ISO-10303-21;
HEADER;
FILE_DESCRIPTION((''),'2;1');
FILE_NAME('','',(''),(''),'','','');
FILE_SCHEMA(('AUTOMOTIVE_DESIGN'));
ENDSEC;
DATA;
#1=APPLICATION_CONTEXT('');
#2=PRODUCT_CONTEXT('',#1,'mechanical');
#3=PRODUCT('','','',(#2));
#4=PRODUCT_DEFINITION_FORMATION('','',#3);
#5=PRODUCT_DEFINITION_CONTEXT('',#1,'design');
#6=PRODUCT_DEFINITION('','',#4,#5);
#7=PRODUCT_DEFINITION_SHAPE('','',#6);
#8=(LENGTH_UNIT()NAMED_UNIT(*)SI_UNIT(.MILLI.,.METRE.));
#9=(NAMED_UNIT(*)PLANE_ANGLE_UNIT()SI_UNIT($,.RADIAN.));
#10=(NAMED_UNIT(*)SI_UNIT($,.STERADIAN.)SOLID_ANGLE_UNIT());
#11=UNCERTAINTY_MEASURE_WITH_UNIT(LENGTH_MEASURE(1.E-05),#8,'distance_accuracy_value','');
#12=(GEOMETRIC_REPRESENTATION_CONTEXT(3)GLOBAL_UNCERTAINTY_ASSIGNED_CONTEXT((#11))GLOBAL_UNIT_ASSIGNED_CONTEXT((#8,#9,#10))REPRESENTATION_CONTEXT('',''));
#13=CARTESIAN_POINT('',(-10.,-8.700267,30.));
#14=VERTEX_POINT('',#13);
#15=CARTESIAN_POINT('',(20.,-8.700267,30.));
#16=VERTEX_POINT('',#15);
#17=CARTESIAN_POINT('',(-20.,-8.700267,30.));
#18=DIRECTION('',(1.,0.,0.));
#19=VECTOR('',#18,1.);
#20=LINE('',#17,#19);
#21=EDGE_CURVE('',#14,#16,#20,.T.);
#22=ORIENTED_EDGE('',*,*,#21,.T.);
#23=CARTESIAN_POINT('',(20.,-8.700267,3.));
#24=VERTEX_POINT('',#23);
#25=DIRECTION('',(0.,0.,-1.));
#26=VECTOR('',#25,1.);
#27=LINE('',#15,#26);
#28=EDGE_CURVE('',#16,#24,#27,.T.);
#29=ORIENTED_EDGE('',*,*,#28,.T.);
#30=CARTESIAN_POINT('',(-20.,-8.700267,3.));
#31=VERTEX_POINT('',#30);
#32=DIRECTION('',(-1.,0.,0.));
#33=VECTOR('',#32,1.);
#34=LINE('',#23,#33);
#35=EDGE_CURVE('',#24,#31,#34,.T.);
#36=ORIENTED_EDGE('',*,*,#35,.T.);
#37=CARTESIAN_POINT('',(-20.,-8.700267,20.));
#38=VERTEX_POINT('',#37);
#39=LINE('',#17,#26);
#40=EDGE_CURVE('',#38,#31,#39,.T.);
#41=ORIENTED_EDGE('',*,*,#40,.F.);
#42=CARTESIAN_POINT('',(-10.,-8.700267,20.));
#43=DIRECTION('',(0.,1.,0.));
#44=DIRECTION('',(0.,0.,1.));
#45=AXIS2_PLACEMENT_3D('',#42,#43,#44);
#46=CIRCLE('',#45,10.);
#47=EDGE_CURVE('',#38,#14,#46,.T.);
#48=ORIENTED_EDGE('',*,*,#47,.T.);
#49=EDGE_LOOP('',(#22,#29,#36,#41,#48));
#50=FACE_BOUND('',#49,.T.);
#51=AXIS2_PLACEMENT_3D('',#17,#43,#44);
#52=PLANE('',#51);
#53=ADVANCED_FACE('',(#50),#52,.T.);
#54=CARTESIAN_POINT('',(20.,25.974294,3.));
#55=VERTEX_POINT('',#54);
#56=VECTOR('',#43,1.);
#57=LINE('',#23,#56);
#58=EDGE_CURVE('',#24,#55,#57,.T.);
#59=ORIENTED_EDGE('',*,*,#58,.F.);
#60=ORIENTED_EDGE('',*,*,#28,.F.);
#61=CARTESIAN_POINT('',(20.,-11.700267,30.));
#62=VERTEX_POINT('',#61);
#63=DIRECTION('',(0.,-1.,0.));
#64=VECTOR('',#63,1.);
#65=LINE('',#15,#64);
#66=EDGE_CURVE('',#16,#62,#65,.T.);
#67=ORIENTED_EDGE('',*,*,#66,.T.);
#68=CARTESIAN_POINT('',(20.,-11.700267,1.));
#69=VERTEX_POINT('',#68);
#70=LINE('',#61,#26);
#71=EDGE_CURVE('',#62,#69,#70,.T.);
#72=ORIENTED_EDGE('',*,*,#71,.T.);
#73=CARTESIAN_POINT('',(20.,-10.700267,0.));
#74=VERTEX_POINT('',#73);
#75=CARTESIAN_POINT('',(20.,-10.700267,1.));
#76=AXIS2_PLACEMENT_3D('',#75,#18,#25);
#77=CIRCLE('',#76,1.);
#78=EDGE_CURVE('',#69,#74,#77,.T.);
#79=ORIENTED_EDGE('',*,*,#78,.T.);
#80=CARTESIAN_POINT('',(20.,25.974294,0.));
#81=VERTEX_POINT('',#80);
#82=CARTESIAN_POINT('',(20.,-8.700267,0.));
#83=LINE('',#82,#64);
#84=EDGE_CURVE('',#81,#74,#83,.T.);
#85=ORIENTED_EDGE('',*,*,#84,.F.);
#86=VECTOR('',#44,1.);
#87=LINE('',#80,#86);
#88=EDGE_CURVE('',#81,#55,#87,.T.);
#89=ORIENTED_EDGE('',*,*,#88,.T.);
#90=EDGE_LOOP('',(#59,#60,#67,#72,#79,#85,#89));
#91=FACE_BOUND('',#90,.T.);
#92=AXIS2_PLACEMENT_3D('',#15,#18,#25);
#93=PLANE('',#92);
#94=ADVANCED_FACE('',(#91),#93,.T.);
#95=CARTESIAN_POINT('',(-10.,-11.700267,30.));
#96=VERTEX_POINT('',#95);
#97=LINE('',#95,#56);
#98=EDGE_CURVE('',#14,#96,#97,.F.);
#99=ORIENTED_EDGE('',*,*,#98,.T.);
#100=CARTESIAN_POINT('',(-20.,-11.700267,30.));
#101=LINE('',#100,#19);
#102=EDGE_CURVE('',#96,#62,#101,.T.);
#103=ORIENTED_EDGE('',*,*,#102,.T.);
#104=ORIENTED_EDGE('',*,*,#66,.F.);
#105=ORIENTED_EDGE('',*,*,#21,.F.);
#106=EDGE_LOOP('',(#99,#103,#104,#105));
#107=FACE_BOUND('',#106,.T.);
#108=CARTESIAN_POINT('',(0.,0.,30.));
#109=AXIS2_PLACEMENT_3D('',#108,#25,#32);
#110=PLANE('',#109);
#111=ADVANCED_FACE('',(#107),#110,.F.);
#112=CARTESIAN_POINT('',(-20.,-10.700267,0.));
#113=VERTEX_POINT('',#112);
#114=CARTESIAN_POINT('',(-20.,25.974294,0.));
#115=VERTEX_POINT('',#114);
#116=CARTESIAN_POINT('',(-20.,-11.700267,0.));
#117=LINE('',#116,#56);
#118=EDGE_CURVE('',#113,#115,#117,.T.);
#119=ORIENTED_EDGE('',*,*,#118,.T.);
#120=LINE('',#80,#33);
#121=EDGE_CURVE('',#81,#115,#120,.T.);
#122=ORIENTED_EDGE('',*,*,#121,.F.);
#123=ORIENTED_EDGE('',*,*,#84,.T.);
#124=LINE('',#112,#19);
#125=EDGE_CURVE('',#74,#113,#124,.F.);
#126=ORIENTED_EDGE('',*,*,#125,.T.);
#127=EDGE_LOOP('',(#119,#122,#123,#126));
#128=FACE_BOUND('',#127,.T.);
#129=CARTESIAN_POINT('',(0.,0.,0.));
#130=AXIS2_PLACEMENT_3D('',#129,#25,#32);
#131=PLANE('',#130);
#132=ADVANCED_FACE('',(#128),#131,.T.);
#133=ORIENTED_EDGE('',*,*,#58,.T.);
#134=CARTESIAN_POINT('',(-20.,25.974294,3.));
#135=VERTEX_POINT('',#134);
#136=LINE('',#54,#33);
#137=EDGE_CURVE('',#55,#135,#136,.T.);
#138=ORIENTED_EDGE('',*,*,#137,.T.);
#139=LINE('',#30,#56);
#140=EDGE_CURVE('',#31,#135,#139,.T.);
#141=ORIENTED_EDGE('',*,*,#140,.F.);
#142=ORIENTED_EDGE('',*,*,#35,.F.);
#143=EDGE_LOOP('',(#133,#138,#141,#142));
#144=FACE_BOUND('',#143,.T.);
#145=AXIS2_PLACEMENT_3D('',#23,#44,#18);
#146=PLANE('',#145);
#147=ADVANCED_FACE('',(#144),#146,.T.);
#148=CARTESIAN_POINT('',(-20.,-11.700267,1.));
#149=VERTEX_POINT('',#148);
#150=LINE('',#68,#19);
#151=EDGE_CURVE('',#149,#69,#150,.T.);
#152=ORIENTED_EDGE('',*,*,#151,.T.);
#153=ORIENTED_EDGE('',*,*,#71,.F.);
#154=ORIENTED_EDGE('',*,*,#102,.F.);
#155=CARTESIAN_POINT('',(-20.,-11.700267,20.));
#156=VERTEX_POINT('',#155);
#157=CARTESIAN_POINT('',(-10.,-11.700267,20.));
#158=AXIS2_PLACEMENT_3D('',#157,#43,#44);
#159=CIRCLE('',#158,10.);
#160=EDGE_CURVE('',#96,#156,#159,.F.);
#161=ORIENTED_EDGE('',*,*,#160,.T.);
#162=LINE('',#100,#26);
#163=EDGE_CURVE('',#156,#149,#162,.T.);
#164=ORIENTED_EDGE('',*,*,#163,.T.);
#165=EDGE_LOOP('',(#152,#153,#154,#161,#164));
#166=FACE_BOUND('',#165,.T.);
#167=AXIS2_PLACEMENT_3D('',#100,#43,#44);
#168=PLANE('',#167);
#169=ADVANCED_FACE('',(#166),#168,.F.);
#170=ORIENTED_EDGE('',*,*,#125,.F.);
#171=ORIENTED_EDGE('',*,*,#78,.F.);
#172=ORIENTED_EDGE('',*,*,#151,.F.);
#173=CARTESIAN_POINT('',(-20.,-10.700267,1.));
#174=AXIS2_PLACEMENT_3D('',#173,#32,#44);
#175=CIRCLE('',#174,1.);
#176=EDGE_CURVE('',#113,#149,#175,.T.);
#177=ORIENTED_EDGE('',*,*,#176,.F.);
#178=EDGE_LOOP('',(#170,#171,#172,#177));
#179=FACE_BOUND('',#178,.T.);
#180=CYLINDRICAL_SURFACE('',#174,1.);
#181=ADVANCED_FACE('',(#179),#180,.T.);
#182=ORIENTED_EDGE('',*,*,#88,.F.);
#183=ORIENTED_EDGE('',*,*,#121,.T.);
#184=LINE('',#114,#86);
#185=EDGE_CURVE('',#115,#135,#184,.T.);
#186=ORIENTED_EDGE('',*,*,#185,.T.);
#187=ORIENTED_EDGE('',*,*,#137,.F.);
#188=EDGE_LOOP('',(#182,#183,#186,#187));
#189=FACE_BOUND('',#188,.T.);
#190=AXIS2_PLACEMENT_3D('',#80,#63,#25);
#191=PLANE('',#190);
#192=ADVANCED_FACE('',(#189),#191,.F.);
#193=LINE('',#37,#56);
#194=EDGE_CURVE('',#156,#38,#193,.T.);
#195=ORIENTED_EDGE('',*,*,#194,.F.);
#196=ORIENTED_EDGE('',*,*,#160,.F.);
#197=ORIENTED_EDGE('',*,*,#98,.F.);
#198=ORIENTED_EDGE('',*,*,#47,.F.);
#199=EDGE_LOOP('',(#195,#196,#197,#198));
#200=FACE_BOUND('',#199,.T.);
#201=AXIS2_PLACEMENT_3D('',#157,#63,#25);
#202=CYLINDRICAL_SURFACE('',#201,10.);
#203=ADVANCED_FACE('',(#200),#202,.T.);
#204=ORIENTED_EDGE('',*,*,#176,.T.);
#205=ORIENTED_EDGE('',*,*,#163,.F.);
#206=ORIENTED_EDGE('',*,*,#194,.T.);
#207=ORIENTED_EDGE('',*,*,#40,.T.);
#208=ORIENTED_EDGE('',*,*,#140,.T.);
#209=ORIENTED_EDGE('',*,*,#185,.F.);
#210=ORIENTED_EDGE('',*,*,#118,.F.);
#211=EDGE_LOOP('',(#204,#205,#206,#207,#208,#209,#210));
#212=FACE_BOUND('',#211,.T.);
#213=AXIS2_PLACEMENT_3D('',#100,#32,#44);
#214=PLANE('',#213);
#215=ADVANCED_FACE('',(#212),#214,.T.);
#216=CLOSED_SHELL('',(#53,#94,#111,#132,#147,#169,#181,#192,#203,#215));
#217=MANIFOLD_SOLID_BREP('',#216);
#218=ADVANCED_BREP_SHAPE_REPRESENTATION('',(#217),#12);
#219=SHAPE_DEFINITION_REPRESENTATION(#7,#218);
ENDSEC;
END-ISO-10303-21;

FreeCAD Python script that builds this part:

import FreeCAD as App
import Part
import Sketcher

V = App.Vector
Q = App.Units.Quantity


def edges_at(feature, points):
    """Names of the edges that pass closest to the given points."""
    edges = feature.Shape.Edges
    near = lambda p: min(range(len(edges)), key=lambda i: edges[i].distToShape(Part.Vertex(*p))[0])
    return sorted({f"Edge{near(p) + 1}" for p in points})


def add_polygon(sketch, points):
    """Adds a closed chain of lines whose ends are joined by coincident constraints."""
    first, n = sketch.GeometryCount, len(points)
    for a, b in zip(points, points[1:] + points[:1]):
        sketch.addGeometry(Part.LineSegment(App.Vector(*a, 0), App.Vector(*b, 0)), False)
    for i in range(n):
        sketch.addConstraint(Sketcher.Constraint("Coincident", first + i, 2, first + (i + 1) % n, 1))

doc = App.newDocument("Part")
body = doc.addObject("PartDesign::Body", "Body")

# Sketch on XY plane
sketch1 = body.newObject("Sketcher::SketchObject", "Sketch")
sketch1.AttachmentSupport = (doc.getObject("XY_Plane"), [""])
sketch1.MapMode = "FlatFace"
add_polygon(sketch1, [(-20, -8.7), (-20, -11.7), (20, -11.7), (20, -8.7)])  # lines 0-3
sketch1.addConstraint(Sketcher.Constraint("Vertical", 0))
sketch1.addConstraint(Sketcher.Constraint("Horizontal", 1))
sketch1.addConstraint(Sketcher.Constraint("Vertical", 2))
sketch1.addConstraint(Sketcher.Constraint("Horizontal", 3))
sketch1.addConstraint(Sketcher.Constraint("DistanceX", 1, 1, 1, 2, Q("40 mm")))
sketch1.addConstraint(Sketcher.Constraint("DistanceY", 0, 2, 0, 1, Q("3 mm")))
sketch1.addConstraint(Sketcher.Constraint("DistanceX", 0, 2, -1, 1, Q("20 mm")))
sketch1.addConstraint(Sketcher.Constraint("DistanceY", 0, 2, -1, 1, Q("11.700267 mm")))
pad1 = body.newObject("PartDesign::Pad", "Pad")
pad1.Profile = sketch1
pad1.Length = 30
doc.recompute()

fillet = body.newObject("PartDesign::Fillet", "Fillet")
fillet.Base = (pad1, edges_at(pad1, [(-20, -10.2, 30)]))
fillet.Radius = 10
doc.recompute()

fillet2 = body.newObject("PartDesign::Fillet", "Fillet001")
fillet2.Base = (fillet, edges_at(fillet, [(0, -11.7, 0)]))
fillet2.Radius = 1

# Sketch on YZ plane
sketch2 = body.newObject("Sketcher::SketchObject", "Sketch001")
sketch2.AttachmentSupport = (doc.getObject("YZ_Plane"), [""])
sketch2.MapMode = "FlatFace"
add_polygon(sketch2, [(26, 3), (-8.7, 3), (-8.7, 0), (26, 0)])  # lines 0-3
sketch2.addConstraint(Sketcher.Constraint("Horizontal", 0))
sketch2.addConstraint(Sketcher.Constraint("Vertical", 1))
sketch2.addConstraint(Sketcher.Constraint("Horizontal", 2))
sketch2.addConstraint(Sketcher.Constraint("Vertical", 3))
sketch2.addConstraint(Sketcher.Constraint("PointOnObject", 1, 2, -1))
sketch2.addConstraint(Sketcher.Constraint("DistanceY", 1, 2, 1, 1, Q("3 mm")))
sketch2.addConstraint(Sketcher.Constraint("DistanceX", 0, 2, 0, 1, Q("34.674561 mm")))
sketch2.addConstraint(Sketcher.Constraint("DistanceX", 0, 2, -1, 1, Q("8.700267 mm")))
pad2 = body.newObject("PartDesign::Pad", "Pad001")
pad2.Profile = sketch2
pad2.Length = 40
pad2.Midplane = True

doc.recompute()
